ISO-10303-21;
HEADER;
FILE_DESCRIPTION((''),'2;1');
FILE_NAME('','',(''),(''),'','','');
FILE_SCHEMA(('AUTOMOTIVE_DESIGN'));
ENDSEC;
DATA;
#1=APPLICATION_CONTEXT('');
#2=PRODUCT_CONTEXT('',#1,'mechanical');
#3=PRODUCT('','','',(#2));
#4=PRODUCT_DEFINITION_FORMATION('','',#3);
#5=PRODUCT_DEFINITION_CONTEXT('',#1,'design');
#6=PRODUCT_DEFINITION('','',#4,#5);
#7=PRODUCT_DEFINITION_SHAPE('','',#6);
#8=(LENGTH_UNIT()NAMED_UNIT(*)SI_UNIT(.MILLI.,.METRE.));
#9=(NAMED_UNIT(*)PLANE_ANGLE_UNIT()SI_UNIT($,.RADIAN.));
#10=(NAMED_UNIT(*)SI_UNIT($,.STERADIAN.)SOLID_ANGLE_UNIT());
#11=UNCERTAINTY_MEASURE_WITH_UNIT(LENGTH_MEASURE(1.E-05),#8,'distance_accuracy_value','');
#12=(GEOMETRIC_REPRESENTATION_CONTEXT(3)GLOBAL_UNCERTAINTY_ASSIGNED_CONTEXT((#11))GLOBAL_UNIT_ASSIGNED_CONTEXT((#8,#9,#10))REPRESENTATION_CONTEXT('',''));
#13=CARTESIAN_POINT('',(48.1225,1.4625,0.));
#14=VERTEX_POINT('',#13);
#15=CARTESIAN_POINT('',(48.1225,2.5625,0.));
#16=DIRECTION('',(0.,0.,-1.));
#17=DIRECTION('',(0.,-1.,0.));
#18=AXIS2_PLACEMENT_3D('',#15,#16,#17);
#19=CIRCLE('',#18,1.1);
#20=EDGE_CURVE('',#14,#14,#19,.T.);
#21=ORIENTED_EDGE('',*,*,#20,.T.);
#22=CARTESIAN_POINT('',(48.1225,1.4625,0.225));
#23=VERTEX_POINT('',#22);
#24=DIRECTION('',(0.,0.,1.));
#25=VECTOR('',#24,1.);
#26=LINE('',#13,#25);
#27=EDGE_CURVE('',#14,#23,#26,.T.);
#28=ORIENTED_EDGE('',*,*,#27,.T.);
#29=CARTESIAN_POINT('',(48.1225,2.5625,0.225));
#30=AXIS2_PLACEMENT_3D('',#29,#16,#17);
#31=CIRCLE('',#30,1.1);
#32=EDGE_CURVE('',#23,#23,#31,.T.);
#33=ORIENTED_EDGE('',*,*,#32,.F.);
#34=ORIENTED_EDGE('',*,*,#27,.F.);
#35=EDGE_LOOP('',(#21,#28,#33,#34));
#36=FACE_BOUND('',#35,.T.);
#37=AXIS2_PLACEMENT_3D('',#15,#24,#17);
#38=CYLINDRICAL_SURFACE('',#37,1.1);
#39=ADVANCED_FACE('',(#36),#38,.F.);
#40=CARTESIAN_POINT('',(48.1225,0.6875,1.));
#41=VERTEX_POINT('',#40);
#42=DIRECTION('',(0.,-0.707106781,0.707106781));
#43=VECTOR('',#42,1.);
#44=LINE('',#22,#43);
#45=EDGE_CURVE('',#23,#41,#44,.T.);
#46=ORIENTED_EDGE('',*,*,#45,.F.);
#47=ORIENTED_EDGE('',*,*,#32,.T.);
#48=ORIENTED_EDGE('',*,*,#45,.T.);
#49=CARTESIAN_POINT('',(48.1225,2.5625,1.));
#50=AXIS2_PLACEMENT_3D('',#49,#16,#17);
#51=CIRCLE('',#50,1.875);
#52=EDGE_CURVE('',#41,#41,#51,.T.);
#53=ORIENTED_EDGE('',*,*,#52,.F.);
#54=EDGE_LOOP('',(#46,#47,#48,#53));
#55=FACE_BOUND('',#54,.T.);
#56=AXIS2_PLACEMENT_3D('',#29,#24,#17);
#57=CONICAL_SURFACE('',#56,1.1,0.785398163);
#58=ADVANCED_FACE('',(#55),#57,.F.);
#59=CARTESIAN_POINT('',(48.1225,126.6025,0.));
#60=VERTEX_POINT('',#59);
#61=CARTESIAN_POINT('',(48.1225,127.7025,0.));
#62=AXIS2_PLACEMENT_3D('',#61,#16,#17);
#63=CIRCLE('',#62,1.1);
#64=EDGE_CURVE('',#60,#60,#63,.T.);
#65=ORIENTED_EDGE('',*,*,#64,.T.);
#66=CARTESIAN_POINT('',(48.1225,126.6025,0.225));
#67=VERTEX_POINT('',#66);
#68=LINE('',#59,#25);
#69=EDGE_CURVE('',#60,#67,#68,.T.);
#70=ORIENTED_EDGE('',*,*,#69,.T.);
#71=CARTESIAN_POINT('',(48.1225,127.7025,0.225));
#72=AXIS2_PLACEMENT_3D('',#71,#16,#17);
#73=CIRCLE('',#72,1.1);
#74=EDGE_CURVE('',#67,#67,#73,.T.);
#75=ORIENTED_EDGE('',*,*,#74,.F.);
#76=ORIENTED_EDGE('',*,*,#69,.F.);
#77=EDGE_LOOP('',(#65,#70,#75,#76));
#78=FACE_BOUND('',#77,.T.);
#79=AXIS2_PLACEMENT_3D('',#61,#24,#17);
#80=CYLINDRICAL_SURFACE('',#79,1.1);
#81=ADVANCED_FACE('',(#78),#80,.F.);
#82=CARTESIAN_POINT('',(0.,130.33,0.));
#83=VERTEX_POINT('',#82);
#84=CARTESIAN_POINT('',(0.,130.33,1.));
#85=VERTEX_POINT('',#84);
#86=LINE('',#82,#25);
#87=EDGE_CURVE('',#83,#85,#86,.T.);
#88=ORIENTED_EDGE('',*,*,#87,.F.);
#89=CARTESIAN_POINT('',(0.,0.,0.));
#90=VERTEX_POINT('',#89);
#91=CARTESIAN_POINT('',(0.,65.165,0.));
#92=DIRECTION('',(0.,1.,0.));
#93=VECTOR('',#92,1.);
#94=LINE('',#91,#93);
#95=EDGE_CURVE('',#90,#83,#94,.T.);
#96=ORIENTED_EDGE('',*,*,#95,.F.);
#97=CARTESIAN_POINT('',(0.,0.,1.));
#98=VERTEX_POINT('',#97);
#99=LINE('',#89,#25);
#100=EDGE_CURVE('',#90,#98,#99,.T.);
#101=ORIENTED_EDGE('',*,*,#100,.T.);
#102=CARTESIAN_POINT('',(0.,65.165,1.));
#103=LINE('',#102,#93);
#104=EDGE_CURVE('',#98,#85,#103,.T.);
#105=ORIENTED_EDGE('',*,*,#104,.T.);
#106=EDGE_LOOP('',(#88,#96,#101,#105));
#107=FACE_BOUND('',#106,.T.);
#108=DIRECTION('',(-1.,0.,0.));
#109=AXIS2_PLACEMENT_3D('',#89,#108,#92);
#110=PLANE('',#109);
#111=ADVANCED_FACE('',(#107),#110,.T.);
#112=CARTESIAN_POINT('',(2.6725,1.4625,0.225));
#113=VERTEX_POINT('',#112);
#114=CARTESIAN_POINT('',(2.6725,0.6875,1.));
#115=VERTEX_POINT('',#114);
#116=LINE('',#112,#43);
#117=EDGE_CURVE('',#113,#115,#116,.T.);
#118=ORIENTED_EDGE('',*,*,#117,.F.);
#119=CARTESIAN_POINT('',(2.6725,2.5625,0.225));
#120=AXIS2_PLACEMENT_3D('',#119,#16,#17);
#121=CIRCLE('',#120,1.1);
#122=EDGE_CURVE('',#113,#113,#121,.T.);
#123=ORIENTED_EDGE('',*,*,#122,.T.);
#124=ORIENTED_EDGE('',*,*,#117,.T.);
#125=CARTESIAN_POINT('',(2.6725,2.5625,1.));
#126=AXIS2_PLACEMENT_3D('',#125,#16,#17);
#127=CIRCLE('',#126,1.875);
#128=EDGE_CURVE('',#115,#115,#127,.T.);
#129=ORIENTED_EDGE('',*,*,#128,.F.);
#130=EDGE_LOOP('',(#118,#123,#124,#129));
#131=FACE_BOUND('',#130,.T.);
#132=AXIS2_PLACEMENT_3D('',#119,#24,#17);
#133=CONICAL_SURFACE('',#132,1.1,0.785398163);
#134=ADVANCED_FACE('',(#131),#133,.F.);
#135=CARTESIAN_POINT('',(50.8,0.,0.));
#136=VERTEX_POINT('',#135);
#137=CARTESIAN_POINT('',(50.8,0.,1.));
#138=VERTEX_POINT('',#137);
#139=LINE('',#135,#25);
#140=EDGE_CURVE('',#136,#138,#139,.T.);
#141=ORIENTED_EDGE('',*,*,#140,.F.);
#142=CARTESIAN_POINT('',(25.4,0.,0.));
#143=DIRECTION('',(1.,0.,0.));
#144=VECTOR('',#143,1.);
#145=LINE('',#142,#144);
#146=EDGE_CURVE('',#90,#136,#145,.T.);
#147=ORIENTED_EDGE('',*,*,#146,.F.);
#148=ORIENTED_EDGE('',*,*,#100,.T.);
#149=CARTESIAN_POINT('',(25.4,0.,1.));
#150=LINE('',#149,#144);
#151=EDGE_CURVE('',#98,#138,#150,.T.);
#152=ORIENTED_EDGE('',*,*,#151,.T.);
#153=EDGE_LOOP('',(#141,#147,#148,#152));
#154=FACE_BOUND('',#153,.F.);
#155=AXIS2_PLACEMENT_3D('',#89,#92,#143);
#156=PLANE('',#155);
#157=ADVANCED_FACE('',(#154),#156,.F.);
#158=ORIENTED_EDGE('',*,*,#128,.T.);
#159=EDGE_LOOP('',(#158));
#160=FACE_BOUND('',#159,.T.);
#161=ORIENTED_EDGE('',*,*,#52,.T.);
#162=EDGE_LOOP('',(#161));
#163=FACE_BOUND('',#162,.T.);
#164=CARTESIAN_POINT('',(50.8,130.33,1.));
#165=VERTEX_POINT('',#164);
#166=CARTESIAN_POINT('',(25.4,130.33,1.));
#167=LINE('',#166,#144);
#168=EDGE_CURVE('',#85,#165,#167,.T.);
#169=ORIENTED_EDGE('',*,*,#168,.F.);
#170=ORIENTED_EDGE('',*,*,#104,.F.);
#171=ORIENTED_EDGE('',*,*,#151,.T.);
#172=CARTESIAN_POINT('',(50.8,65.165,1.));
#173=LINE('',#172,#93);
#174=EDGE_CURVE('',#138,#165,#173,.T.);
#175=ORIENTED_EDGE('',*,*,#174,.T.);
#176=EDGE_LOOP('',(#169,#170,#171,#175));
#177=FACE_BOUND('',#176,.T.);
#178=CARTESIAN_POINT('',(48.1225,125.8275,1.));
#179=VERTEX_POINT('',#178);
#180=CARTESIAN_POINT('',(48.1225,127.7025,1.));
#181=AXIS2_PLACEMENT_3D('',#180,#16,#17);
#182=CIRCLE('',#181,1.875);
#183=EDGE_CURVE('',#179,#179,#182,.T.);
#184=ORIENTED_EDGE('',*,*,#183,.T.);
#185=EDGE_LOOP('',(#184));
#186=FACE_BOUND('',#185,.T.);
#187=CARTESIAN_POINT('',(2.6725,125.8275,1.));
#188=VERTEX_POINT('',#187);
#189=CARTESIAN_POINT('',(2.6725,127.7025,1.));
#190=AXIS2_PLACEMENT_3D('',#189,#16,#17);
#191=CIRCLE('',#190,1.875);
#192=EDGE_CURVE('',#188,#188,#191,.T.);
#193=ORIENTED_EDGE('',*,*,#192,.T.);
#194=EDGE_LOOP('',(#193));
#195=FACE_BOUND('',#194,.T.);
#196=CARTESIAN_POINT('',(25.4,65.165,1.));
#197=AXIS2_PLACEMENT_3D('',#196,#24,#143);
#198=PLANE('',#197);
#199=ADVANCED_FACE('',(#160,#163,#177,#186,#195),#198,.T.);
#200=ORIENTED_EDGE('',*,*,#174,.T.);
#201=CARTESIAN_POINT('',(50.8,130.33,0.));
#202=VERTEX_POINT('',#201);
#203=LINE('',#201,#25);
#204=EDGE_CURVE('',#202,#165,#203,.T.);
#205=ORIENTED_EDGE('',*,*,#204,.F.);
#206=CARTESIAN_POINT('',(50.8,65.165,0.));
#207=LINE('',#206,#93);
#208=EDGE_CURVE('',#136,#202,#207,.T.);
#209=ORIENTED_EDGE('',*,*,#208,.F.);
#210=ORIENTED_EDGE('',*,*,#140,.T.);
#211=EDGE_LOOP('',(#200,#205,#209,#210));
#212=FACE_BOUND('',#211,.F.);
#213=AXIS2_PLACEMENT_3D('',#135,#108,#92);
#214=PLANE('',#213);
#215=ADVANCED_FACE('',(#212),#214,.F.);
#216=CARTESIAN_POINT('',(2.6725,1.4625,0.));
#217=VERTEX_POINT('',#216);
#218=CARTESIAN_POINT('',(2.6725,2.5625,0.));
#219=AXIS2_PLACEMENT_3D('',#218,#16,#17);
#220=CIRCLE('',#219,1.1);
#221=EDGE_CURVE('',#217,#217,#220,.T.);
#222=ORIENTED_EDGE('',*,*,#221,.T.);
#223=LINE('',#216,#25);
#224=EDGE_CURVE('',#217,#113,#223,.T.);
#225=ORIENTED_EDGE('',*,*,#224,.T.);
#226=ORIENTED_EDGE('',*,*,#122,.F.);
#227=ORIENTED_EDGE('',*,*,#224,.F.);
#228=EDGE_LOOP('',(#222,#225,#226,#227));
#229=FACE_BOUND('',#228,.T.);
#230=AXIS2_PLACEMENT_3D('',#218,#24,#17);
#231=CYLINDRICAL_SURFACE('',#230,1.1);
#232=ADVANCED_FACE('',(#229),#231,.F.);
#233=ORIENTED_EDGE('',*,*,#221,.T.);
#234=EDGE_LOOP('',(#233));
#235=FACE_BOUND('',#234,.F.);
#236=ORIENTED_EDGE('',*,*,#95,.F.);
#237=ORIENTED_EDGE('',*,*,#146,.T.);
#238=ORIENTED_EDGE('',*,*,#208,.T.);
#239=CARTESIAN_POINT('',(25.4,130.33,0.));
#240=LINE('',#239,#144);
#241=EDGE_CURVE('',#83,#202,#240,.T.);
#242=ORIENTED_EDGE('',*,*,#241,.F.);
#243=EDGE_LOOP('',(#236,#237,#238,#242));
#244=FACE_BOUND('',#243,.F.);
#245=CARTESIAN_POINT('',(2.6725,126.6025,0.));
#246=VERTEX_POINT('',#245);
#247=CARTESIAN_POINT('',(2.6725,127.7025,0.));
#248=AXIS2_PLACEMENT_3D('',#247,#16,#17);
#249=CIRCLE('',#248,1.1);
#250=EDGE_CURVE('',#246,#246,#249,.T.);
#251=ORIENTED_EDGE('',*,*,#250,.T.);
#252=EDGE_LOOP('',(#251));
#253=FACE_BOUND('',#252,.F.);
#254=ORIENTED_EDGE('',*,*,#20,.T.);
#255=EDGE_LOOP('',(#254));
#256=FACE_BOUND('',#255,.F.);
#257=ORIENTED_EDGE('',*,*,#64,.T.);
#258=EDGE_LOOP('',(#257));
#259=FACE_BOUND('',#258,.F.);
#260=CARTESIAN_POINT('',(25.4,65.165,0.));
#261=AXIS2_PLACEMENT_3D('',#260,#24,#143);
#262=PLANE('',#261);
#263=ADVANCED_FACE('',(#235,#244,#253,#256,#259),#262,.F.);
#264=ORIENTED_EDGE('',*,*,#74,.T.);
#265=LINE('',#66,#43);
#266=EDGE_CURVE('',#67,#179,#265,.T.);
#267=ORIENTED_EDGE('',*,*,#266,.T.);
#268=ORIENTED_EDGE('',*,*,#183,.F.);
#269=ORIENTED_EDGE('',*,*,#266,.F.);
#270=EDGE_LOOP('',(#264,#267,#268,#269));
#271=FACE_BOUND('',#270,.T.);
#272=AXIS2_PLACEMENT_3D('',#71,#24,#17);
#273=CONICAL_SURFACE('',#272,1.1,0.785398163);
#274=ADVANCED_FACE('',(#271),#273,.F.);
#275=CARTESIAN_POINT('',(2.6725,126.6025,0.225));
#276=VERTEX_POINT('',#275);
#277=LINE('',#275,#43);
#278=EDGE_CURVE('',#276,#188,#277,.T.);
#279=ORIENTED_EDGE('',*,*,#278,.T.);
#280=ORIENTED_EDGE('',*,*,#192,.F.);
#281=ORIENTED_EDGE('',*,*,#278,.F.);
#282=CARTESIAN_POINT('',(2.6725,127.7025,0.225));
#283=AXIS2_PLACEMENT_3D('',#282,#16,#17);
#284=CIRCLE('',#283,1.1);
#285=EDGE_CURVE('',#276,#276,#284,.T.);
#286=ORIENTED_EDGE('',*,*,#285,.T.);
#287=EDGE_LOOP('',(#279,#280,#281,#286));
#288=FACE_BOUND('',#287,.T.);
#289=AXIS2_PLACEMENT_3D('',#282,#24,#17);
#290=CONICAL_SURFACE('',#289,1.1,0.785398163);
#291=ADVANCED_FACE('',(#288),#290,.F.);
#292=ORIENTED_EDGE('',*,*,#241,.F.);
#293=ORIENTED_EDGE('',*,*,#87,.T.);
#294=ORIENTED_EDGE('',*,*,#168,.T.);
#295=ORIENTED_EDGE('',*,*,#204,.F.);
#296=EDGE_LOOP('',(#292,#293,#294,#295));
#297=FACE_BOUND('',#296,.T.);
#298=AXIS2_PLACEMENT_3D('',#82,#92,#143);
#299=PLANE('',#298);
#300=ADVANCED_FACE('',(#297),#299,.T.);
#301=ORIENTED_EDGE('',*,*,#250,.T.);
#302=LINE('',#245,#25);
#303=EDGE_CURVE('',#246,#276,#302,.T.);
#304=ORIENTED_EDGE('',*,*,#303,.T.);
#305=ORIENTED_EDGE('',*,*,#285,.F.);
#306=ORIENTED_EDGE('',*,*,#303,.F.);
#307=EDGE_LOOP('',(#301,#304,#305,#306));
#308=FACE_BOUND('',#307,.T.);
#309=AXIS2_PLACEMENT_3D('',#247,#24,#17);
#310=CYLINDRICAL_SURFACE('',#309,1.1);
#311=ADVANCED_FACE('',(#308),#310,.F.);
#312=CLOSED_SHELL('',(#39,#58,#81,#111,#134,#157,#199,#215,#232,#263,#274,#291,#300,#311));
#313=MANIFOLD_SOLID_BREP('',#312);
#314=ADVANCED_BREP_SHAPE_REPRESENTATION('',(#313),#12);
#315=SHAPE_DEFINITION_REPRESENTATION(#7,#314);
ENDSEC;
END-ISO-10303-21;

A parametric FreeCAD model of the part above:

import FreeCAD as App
import Part
import Sketcher
Q = App.Units.Quantity

doc = App.newDocument("Part")
params = doc.addObject("Spreadsheet::Sheet", "Params")
for row, (alias, value) in enumerate([
    ("sketch1_width", "50.8 mm"),
    ("sketch1_height", "130.33 mm"),
    ("pad1_length", "1 mm"),
    ("sketch2_height", "1 mm"),
    ("sketch2_width", "1.1 mm"),
    ("groove_angle", "360 deg"),
    ("linearpattern_pitch", "133.137981 mm"),
    ("linearpattern2_pitch", "125.14 mm"),
    ("linearpattern3_pitch", "45.45 mm"),
], start=1):
    params.set(f"A{row}", alias)
    params.set(f"B{row}", "=" + value)
    params.setAlias(f"B{row}", alias)

body = doc.addObject("PartDesign::Body", "Body")

# Sketch on XY plane
sketch1 = doc.addObject("Sketcher::SketchObject", "Sketch")
body.addObject(sketch1)
sketch1.AttachmentSupport = (doc.XY_Plane, [""])
sketch1.MapMode = "FlatFace"
sketch1.addGeometry(Part.LineSegment(App.Vector(0, 130.33, 0), App.Vector(0, 0, 0)), False)
sketch1.addGeometry(Part.LineSegment(App.Vector(0, 0, 0), App.Vector(50.8, 0, 0)), False)
sketch1.addGeometry(Part.LineSegment(App.Vector(50.8, 0, 0), App.Vector(50.8, 130.33, 0)), False)
sketch1.addGeometry(Part.LineSegment(App.Vector(50.8, 130.33, 0), App.Vector(0, 130.33, 0)), False)
sketch1.addConstraint(Sketcher.Constraint("Coincident", 0, 2, 1, 1))
sketch1.addConstraint(Sketcher.Constraint("Coincident", 1, 2, 2, 1))
sketch1.addConstraint(Sketcher.Constraint("Coincident", 2, 2, 3, 1))
sketch1.addConstraint(Sketcher.Constraint("Coincident", 3, 2, 0, 1))
sketch1.addConstraint(Sketcher.Constraint("Vertical", 0))
sketch1.addConstraint(Sketcher.Constraint("Horizontal", 1))
sketch1.addConstraint(Sketcher.Constraint("Vertical", 2))
sketch1.addConstraint(Sketcher.Constraint("Horizontal", 3))
sketch1.addConstraint(Sketcher.Constraint("Coincident", 0, 2, -1, 1))
sketch1.addConstraint(Sketcher.Constraint("DistanceX", 1, 1, 1, 2, Q("50.8 mm")))
sketch1.addConstraint(Sketcher.Constraint("DistanceY", 0, 2, 0, 1, Q("130.33 mm")))
sketch1.setExpression("Constraints[9]", "Params.sketch1_width")
sketch1.setExpression("Constraints[10]", "Params.sketch1_height")
pad1 = doc.addObject("PartDesign::Pad", "Pad")
body.addObject(pad1)
pad1.Profile = sketch1
pad1.setExpression("Length", "Params.pad1_length")

# Sketch on YZ plane
sketch2 = doc.addObject("Sketcher::SketchObject", "Sketch001")
body.addObject(sketch2)
sketch2.AttachmentSupport = (doc.YZ_Plane, [""])
sketch2.MapMode = "FlatFace"
sketch2.AttachmentOffset = App.Placement(App.Vector(0, 0, 48.1225), App.Rotation())
sketch2.addGeometry(Part.LineSegment(App.Vector(127.7025, 0, 0), App.Vector(127.7025, 1, 0)), False)
sketch2.addGeometry(Part.LineSegment(App.Vector(127.7025, 1, 0), App.Vector(125.8275, 1, 0)), False)
sketch2.addGeometry(Part.LineSegment(App.Vector(125.8275, 1, 0), App.Vector(126.6025, 0.225, 0)), False)
sketch2.addGeometry(Part.LineSegment(App.Vector(126.6025, 0.225, 0), App.Vector(126.6025, 0, 0)), False)
sketch2.addGeometry(Part.LineSegment(App.Vector(126.6025, 0, 0), App.Vector(127.7025, 0, 0)), False)
sketch2.addGeometry(Part.LineSegment(App.Vector(127.7025, 1, 0), App.Vector(127.7025, 0, 0)), True)  # axis
sketch2.addConstraint(Sketcher.Constraint("Coincident", 0, 2, 1, 1))
sketch2.addConstraint(Sketcher.Constraint("Coincident", 1, 2, 2, 1))
sketch2.addConstraint(Sketcher.Constraint("Coincident", 2, 2, 3, 1))
sketch2.addConstraint(Sketcher.Constraint("Coincident", 3, 2, 4, 1))
sketch2.addConstraint(Sketcher.Constraint("Coincident", 4, 2, 0, 1))
sketch2.addConstraint(Sketcher.Constraint("Vertical", 0))
sketch2.addConstraint(Sketcher.Constraint("Horizontal", 1))
sketch2.addConstraint(Sketcher.Constraint("Vertical", 3))
sketch2.addConstraint(Sketcher.Constraint("Horizontal", 4))
sketch2.addConstraint(Sketcher.Constraint("Vertical", 5))
sketch2.addConstraint(Sketcher.Constraint("Coincident", 5, 1, 0, 2))
sketch2.addConstraint(Sketcher.Constraint("PointOnObject", 3, 2, -1))
sketch2.addConstraint(Sketcher.Constraint("PointOnObject", 5, 2, -1))
sketch2.addConstraint(Sketcher.Constraint("DistanceY", 0, 1, 0, 2, Q("1 mm")))
sketch2.addConstraint(Sketcher.Constraint("Angle", 2, Q("-45 deg")))
sketch2.addConstraint(Sketcher.Constraint("DistanceX", 4, 1, 4, 2, Q("1.1 mm")))
sketch2.addConstraint(Sketcher.Constraint("DistanceX", 1, 2, 1, 1, Q("1.875 mm")))
sketch2.addConstraint(Sketcher.Constraint("DistanceX", -1, 1, 0, 2, Q("127.7025 mm")))
sketch2.setExpression("Constraints[13]", "Params.sketch2_height")
sketch2.setExpression("Constraints[15]", "Params.sketch2_width")
groove = doc.addObject("PartDesign::Groove", "Groove")
body.addObject(groove)
groove.Profile = sketch2
groove.ReferenceAxis = (sketch2, ["Axis0"])
groove.setExpression("Angle", "Params.groove_angle")
doc.recompute()

datumline = doc.addObject("PartDesign::Line", "DatumLine")
body.addObject(datumline)
datumline.Placement = App.Placement(App.Vector(0, 0, 0), App.Rotation(App.Vector(0, 0, 1), App.Vector(-0.341375162, -0.939927124, 0)))
linearpattern = doc.addObject("PartDesign::LinearPattern", "LinearPattern")
body.addObject(linearpattern)
linearpattern.Originals = [groove]
linearpattern.Direction = (datumline, [""])
linearpattern.Mode = "offset"
linearpattern.setExpression("Offset", "Params.linearpattern_pitch")
linearpattern.Occurrences = 2
body.Tip = linearpattern
doc.recompute()

linearpattern2 = doc.addObject("PartDesign::LinearPattern", "LinearPattern001")
body.addObject(linearpattern2)
linearpattern2.Originals = [groove]
linearpattern2.Direction = (doc.Y_Axis, [""])
linearpattern2.Mode = "offset"
linearpattern2.setExpression("Offset", "Params.linearpattern2_pitch")
linearpattern2.Occurrences = 2
linearpattern2.Reversed = True
body.Tip = linearpattern2
doc.recompute()

linearpattern3 = doc.addObject("PartDesign::LinearPattern", "LinearPattern002")
body.addObject(linearpattern3)
linearpattern3.Originals = [groove]
linearpattern3.Direction = (doc.X_Axis, [""])
linearpattern3.Mode = "offset"
linearpattern3.setExpression("Offset", "Params.linearpattern3_pitch")
linearpattern3.Occurrences = 2
linearpattern3.Reversed = True
body.Tip = linearpattern3

doc.recompute()
